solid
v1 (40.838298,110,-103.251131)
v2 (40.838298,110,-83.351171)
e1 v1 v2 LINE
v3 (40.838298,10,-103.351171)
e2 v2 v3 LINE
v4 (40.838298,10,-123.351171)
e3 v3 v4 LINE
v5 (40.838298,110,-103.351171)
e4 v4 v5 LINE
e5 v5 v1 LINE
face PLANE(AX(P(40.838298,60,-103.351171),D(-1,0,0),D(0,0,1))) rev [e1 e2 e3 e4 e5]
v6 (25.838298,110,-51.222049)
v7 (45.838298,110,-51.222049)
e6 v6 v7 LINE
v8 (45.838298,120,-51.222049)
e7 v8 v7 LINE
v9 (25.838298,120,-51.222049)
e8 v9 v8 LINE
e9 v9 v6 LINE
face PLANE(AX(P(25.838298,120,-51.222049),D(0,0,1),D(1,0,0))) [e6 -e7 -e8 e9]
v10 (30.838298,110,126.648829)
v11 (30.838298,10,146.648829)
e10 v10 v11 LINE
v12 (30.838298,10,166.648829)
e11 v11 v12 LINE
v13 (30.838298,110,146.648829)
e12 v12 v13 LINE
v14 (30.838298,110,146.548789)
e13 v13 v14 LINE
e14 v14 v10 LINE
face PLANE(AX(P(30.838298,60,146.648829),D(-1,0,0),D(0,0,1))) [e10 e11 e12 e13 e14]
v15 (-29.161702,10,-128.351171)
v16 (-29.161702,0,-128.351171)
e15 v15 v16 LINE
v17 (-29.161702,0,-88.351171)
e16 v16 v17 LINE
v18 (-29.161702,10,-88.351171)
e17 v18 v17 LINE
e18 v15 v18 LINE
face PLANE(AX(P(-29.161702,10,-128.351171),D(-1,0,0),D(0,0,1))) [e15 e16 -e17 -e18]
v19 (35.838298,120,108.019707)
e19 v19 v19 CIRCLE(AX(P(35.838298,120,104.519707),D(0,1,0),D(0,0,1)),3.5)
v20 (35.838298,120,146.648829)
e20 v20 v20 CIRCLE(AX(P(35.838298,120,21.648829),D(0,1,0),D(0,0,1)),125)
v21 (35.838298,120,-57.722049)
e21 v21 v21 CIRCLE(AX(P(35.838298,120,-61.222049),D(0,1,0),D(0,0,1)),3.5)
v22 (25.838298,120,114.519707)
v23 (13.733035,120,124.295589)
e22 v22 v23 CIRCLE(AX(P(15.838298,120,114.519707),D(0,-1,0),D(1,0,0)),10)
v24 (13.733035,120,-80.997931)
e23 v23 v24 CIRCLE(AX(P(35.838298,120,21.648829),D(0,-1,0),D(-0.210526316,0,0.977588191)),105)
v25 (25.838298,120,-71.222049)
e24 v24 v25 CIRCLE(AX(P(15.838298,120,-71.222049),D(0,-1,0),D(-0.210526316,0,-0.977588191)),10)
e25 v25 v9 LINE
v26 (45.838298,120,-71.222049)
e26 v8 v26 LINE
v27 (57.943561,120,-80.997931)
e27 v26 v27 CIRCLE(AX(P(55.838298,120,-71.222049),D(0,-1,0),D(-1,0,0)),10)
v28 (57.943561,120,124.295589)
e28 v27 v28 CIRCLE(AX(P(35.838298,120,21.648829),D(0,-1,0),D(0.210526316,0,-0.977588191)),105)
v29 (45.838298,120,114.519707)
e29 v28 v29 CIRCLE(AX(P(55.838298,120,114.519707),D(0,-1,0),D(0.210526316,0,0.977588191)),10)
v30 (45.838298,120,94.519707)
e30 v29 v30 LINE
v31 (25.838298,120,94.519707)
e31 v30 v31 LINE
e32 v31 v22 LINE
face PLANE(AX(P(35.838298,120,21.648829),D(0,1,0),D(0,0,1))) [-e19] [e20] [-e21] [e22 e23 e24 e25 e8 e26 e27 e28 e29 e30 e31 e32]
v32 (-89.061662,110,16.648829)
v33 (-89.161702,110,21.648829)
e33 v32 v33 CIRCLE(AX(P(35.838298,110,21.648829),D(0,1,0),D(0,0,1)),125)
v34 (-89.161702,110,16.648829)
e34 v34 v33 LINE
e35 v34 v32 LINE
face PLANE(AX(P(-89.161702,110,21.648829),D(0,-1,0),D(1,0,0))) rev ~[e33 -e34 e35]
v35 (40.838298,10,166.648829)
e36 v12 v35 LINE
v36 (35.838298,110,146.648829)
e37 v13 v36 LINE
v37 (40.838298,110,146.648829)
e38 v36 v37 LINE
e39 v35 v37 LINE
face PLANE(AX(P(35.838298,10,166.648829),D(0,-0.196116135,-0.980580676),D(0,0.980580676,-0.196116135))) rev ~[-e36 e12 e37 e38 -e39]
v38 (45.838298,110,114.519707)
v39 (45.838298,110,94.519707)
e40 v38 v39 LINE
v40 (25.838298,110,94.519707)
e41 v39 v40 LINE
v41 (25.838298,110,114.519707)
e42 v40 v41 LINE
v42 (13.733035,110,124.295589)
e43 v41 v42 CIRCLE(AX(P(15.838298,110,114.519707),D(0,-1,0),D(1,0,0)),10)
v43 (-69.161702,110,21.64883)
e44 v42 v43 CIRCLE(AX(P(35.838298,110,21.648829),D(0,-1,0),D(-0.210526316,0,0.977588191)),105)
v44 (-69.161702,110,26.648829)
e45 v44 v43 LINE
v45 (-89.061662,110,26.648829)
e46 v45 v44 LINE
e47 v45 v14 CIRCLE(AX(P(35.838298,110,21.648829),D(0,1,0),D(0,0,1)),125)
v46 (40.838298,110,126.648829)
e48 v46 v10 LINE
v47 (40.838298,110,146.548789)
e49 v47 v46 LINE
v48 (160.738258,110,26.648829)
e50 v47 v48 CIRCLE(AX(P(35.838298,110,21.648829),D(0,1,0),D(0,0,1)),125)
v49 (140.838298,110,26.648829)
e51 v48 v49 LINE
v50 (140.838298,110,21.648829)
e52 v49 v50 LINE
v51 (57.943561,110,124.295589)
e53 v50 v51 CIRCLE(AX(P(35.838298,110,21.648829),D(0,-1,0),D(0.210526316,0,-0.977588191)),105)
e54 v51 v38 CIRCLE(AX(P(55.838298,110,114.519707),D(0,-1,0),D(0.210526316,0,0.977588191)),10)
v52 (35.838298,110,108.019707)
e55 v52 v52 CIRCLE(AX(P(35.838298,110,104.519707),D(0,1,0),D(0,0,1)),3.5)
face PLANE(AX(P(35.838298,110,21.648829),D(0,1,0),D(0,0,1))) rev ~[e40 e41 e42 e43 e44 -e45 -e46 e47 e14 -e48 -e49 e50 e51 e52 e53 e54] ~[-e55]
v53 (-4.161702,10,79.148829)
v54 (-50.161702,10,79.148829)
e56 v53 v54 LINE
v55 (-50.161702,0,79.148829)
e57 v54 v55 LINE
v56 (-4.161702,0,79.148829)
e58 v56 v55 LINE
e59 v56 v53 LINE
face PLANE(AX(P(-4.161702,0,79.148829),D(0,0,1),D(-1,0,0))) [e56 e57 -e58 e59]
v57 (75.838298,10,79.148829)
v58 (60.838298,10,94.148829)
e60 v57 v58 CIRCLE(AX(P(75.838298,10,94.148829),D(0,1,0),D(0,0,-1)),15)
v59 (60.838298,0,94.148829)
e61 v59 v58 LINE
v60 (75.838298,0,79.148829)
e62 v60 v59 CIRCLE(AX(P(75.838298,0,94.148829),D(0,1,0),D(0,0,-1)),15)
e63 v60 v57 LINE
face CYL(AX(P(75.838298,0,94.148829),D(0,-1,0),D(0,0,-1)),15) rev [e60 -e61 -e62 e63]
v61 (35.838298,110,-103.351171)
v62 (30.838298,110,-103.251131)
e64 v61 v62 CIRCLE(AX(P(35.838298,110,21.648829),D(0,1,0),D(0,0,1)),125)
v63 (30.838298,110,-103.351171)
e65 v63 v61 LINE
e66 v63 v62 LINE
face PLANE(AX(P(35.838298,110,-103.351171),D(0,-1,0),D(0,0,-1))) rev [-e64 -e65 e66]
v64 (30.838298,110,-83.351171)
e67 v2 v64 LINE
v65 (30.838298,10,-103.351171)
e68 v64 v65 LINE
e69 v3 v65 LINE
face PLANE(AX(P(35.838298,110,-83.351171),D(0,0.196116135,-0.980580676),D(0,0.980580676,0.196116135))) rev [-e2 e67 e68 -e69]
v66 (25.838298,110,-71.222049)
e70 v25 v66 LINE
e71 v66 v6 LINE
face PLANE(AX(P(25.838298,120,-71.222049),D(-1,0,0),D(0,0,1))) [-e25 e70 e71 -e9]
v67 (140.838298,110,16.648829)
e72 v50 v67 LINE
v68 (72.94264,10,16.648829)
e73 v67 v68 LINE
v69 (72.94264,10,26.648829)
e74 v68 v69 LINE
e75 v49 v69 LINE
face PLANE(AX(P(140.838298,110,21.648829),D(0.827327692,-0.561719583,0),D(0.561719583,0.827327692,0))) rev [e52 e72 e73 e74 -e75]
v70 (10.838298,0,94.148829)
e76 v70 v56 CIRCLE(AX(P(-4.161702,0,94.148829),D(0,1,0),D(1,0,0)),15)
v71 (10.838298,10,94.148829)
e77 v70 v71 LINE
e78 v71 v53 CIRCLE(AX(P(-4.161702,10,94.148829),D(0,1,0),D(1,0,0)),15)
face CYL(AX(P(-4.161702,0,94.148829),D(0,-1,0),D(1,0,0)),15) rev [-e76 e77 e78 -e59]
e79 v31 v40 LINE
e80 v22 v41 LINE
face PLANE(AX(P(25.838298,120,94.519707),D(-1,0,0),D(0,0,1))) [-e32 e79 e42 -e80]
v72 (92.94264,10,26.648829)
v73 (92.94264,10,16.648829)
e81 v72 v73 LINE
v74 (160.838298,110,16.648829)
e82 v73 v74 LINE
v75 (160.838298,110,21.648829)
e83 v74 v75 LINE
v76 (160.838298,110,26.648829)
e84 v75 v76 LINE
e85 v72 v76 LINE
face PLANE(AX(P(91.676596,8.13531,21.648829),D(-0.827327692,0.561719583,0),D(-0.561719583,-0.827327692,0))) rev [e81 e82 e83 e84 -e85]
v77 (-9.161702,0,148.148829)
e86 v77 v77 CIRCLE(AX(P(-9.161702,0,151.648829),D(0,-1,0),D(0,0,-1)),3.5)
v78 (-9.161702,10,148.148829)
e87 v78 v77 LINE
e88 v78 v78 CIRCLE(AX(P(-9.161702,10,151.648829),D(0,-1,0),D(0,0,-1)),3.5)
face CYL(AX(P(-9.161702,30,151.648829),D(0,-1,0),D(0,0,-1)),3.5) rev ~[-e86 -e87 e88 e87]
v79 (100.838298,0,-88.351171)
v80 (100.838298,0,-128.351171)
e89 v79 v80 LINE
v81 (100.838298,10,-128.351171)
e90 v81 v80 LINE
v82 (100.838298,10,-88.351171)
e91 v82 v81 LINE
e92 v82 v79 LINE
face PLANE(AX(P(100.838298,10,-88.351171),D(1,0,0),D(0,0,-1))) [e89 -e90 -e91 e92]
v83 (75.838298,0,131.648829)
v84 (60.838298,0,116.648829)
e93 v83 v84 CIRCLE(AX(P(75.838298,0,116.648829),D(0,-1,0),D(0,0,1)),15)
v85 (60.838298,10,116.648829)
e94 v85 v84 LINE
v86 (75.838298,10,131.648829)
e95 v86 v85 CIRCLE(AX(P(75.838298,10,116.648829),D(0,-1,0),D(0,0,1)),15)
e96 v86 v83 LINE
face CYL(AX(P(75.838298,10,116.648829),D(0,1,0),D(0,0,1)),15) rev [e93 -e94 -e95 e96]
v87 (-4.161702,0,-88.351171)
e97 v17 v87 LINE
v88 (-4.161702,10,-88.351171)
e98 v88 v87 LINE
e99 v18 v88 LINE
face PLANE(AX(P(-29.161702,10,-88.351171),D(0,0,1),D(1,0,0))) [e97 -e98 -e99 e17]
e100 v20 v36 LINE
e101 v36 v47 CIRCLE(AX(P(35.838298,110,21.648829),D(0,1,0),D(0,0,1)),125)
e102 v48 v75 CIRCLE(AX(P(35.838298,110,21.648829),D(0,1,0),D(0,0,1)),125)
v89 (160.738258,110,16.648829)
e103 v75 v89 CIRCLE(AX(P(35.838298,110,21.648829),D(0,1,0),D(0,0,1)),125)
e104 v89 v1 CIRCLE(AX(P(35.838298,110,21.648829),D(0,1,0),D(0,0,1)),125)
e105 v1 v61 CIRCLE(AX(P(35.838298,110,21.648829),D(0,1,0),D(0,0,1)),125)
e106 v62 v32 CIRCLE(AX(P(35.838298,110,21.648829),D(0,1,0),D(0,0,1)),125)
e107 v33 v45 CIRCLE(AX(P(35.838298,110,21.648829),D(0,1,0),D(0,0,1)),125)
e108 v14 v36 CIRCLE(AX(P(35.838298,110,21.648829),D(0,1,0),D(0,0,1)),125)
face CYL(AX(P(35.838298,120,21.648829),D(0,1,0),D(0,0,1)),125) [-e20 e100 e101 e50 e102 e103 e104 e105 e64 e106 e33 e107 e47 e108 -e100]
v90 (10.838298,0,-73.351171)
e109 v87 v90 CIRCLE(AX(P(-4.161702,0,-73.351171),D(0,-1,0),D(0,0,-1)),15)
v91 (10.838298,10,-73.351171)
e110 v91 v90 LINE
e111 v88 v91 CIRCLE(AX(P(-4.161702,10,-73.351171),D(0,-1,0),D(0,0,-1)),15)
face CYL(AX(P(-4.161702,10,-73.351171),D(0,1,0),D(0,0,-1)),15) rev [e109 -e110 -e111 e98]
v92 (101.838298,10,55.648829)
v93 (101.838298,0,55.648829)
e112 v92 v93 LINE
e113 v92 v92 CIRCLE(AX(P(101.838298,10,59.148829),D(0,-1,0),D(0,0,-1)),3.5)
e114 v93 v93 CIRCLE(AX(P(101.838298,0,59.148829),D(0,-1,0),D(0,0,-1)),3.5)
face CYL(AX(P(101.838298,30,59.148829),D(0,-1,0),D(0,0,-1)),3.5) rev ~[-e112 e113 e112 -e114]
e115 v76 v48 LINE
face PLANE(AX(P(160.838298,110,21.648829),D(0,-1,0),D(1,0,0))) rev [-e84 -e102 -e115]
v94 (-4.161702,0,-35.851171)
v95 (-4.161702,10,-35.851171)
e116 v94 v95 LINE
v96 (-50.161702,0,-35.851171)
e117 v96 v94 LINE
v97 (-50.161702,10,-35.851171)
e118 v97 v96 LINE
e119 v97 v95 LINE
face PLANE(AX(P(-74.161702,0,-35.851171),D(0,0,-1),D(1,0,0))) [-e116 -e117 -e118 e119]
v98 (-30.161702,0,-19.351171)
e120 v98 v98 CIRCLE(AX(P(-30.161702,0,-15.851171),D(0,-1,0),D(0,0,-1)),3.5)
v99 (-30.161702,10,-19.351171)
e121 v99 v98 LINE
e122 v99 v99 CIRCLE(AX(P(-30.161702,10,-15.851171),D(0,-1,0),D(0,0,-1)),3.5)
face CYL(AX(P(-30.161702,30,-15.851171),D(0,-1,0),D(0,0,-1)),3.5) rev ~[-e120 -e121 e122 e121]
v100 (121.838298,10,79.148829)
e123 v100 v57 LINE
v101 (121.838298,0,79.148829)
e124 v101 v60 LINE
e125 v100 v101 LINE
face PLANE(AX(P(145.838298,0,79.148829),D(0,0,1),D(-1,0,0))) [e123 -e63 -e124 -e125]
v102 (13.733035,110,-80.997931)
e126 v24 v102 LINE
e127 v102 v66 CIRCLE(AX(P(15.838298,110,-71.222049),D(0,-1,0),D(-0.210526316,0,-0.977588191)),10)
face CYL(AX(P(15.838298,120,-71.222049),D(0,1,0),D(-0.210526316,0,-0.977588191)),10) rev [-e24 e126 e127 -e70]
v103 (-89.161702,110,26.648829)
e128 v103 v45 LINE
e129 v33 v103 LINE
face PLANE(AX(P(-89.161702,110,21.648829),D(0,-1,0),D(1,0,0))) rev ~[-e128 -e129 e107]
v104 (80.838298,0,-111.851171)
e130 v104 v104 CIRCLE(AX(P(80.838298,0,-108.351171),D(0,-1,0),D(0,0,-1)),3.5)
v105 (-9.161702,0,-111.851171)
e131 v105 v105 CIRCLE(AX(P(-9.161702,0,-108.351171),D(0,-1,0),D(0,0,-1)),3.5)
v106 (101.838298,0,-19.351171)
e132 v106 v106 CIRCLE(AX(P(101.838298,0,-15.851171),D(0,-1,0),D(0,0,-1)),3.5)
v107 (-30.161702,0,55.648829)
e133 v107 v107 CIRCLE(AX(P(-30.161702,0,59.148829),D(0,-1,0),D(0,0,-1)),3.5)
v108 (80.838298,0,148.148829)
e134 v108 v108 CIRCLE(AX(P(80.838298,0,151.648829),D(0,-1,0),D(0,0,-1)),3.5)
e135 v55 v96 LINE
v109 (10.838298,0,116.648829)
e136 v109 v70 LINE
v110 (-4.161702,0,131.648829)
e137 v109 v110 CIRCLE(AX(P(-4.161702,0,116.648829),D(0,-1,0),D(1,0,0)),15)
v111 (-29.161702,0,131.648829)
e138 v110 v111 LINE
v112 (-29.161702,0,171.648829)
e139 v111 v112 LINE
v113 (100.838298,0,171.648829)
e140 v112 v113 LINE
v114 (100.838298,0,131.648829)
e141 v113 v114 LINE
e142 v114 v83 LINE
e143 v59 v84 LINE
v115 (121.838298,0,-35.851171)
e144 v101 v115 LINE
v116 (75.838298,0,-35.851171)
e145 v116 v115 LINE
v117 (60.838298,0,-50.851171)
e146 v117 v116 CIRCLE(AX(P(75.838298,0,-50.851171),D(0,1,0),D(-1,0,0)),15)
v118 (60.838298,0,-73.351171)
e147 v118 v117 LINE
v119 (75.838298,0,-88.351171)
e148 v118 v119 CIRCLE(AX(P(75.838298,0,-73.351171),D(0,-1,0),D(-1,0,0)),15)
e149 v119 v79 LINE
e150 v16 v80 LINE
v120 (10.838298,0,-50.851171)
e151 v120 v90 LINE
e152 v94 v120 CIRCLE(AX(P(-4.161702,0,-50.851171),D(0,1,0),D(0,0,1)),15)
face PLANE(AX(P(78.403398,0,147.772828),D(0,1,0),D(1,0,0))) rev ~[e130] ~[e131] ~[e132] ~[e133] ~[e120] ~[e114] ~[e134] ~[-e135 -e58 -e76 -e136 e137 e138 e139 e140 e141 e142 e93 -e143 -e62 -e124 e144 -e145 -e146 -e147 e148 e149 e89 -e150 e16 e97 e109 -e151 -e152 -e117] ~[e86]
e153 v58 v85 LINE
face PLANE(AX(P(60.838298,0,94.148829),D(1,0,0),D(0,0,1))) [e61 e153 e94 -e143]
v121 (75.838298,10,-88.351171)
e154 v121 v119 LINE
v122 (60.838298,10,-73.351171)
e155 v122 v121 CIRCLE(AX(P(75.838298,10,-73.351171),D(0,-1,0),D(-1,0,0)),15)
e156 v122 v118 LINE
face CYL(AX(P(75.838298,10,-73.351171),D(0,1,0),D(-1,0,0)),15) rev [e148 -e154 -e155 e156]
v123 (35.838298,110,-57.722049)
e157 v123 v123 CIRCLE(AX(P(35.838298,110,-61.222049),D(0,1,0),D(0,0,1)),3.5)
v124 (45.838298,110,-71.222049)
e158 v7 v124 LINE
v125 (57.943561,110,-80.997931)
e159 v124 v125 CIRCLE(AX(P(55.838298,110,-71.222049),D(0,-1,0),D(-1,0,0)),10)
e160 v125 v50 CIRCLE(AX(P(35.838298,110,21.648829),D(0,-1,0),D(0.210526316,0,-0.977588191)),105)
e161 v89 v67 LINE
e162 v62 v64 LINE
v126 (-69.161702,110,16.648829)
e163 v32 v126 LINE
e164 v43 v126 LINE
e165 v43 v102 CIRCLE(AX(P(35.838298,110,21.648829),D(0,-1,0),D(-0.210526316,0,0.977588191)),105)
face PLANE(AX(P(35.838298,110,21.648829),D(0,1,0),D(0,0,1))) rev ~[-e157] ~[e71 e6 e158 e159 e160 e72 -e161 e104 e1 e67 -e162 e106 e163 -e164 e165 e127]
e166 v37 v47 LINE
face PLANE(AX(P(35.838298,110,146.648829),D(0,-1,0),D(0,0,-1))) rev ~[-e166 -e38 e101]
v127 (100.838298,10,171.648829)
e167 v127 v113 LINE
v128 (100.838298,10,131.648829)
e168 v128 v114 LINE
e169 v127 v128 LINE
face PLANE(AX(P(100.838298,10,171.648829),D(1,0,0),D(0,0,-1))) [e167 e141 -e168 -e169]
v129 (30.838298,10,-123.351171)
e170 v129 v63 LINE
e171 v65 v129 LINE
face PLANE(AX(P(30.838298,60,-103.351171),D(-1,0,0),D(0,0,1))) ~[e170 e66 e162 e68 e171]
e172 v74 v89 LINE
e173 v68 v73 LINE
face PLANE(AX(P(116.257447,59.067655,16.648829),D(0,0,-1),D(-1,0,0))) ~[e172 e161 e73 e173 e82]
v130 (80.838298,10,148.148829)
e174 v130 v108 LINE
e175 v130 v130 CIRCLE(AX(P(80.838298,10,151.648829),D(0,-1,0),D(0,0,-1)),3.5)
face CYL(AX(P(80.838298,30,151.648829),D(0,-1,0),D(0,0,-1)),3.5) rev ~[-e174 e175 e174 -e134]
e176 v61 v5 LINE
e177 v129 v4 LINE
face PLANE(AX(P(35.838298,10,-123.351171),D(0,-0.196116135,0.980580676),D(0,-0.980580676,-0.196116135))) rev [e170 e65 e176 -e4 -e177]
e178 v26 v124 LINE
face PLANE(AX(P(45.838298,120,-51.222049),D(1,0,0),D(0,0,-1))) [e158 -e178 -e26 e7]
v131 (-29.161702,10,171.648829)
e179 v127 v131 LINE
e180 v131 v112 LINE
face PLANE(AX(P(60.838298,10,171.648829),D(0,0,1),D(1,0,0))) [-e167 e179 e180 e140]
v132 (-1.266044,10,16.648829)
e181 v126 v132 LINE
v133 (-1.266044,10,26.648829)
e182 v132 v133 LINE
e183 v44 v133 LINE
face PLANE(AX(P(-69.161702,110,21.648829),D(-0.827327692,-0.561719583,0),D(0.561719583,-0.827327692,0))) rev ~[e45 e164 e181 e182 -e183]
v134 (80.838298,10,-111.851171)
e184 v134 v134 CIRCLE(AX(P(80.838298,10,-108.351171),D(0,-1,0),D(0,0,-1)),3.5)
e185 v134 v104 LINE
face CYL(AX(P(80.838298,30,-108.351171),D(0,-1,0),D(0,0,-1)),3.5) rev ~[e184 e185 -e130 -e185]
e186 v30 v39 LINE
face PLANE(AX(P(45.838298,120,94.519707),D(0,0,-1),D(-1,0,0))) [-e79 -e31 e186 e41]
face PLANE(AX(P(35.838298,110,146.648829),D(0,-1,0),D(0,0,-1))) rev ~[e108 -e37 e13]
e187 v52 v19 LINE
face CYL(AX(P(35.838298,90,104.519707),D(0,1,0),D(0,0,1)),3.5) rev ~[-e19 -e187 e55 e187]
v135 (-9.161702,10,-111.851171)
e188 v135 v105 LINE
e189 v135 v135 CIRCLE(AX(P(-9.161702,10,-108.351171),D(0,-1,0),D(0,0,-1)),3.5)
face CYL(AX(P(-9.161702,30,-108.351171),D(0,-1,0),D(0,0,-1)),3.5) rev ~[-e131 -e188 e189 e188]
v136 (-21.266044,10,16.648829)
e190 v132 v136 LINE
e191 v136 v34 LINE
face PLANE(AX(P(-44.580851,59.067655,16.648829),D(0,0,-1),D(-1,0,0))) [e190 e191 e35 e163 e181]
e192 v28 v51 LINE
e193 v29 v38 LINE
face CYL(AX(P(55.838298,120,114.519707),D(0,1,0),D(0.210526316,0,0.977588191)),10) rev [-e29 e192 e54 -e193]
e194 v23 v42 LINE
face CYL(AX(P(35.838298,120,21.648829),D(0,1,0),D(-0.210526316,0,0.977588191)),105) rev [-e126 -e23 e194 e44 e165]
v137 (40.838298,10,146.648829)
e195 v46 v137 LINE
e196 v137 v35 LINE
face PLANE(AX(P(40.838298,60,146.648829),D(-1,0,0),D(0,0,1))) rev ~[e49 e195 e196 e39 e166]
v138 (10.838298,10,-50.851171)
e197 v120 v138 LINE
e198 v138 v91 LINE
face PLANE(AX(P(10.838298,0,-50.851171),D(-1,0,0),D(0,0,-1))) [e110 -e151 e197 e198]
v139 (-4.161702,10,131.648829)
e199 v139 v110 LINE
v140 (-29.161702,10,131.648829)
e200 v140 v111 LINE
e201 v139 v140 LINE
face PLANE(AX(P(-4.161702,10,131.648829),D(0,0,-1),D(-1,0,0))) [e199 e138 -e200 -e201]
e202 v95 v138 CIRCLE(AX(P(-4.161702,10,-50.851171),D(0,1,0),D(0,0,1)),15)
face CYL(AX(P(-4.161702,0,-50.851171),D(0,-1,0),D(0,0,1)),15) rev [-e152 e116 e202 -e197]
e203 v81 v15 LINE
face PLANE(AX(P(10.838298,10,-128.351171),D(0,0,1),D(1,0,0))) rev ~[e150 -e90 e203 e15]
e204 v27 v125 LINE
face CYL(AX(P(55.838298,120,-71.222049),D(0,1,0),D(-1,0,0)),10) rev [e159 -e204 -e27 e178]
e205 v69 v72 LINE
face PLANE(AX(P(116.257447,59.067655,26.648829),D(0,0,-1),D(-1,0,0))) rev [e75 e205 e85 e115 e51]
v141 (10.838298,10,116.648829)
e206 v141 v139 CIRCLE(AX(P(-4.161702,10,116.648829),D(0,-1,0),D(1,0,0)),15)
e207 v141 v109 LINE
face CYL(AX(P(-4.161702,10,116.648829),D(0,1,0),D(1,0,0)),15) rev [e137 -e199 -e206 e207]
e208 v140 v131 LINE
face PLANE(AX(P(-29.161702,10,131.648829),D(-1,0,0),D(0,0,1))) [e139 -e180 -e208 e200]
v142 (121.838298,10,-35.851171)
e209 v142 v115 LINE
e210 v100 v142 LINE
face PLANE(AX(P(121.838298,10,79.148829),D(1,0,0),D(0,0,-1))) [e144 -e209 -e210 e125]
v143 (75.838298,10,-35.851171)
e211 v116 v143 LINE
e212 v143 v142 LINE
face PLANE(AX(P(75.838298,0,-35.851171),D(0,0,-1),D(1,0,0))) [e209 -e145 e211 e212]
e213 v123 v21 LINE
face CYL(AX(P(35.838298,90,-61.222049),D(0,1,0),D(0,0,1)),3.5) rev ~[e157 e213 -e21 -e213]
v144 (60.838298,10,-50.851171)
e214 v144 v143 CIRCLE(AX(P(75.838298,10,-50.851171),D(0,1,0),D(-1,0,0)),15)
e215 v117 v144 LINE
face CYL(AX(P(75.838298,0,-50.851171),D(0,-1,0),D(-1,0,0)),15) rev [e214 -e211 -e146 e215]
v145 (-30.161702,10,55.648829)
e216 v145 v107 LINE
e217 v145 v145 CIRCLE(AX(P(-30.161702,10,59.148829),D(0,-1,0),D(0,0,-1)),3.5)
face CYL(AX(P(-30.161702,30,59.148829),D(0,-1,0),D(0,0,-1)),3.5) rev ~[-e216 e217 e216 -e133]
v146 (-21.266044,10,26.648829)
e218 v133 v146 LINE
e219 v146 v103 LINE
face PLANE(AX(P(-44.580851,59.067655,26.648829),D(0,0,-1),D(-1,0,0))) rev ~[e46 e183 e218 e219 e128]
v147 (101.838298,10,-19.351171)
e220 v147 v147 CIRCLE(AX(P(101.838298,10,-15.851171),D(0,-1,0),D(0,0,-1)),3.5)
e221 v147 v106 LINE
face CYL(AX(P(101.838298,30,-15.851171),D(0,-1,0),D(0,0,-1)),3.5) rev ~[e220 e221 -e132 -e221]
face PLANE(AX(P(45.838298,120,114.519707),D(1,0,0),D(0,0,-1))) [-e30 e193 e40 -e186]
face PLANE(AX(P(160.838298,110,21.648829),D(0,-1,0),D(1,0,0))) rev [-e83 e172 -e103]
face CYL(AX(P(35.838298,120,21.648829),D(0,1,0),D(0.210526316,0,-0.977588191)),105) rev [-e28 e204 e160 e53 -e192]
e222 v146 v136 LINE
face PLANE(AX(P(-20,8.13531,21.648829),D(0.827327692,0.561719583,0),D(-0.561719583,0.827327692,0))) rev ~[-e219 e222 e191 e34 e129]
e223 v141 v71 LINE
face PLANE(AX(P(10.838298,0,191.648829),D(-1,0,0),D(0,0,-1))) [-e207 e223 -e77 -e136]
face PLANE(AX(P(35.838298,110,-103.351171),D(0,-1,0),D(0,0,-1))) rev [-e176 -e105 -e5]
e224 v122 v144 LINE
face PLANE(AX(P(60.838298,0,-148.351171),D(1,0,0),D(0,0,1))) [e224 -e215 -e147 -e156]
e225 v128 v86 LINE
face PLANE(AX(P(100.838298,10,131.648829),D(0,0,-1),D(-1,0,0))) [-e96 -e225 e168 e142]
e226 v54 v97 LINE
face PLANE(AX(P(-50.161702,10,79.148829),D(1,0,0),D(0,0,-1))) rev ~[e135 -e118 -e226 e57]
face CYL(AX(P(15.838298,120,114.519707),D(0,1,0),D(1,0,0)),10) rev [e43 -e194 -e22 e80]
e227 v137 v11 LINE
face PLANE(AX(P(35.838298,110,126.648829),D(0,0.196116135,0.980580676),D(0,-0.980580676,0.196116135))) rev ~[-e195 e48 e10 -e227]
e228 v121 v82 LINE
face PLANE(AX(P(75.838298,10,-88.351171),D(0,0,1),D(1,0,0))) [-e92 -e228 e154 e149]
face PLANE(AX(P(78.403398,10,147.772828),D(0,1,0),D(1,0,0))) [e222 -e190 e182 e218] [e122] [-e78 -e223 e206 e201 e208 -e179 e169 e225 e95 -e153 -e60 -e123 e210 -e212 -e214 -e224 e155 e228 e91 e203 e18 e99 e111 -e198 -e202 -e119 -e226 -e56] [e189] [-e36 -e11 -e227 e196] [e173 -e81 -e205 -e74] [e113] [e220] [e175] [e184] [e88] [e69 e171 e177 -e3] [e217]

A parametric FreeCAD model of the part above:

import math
import FreeCAD as App
import Part
import Sketcher
from FreeCAD import Vector
Q = App.Units.Quantity

doc = App.newDocument("Part")
body = doc.addObject("PartDesign::Body", "Body")

sketch1 = doc.addObject("Sketcher::SketchObject", "Sketch")
body.addObject(sketch1)
sketch1.AttachmentSupport = (doc.XZ_Plane, [""])
sketch1.MapMode = "FlatFace"
sketch1.addGeometry([
    Part.LineSegment(Vector(145.838298, -35.851171, 0), Vector(75.838298, -35.851171, 0)),
    Part.ArcOfCircle(Part.Circle(Vector(75.838298, -50.851171, 0), Vector(0, 0, 1), 15), math.radians(90), math.radians(180)),
    Part.LineSegment(Vector(60.838298, -50.851171, 0), Vector(60.838298, -148.351171, 0)),
    Part.LineSegment(Vector(60.838298, -148.351171, 0), Vector(10.838298, -148.351171, 0)),
    Part.LineSegment(Vector(10.838298, -148.351171, 0), Vector(10.838298, -50.851171, 0)),
    Part.ArcOfCircle(Part.Circle(Vector(-4.161702, -50.851171, 0), Vector(0, 0, 1), 15), math.radians(0), math.radians(90)),
    Part.LineSegment(Vector(-4.161702, -35.851171, 0), Vector(-74.161702, -35.851171, 0)),
    Part.LineSegment(Vector(-74.161702, -35.851171, 0), Vector(-74.161702, 79.148829, 0)),
    Part.LineSegment(Vector(-74.161702, 79.148829, 0), Vector(-4.161702, 79.148829, 0)),
    Part.ArcOfCircle(Part.Circle(Vector(-4.161702, 94.148829, 0), Vector(0, 0, 1), 15), math.radians(-90), math.radians(0)),
    Part.LineSegment(Vector(10.838298, 94.148829, 0), Vector(10.838298, 191.648829, 0)),
    Part.LineSegment(Vector(10.838298, 191.648829, 0), Vector(60.838298, 191.648829, 0)),
    Part.LineSegment(Vector(60.838298, 191.648829, 0), Vector(60.838298, 94.148829, 0)),
    Part.ArcOfCircle(Part.Circle(Vector(75.838298, 94.148829, 0), Vector(0, 0, 1), 15), math.radians(180), math.radians(270)),
    Part.LineSegment(Vector(75.838298, 79.148829, 0), Vector(145.838298, 79.148829, 0)),
    Part.LineSegment(Vector(145.838298, 79.148829, 0), Vector(145.838298, -35.851171, 0)),
], False)
sketch1.addConstraint([
    Sketcher.Constraint("Tangent", 0, 2, 1, 1),
    Sketcher.Constraint("Tangent", 1, 2, 2, 1),
    Sketcher.Constraint("Coincident", 2, 2, 3, 1),
    Sketcher.Constraint("Coincident", 3, 2, 4, 1),
    Sketcher.Constraint("Tangent", 4, 2, 5, 1),
    Sketcher.Constraint("Tangent", 5, 2, 6, 1),
    Sketcher.Constraint("Coincident", 6, 2, 7, 1),
    Sketcher.Constraint("Coincident", 7, 2, 8, 1),
    Sketcher.Constraint("Tangent", 8, 2, 9, 1),
    Sketcher.Constraint("Tangent", 9, 2, 10, 1),
    Sketcher.Constraint("Coincident", 10, 2, 11, 1),
    Sketcher.Constraint("Coincident", 11, 2, 12, 1),
    Sketcher.Constraint("Tangent", 12, 2, 13, 1),
    Sketcher.Constraint("Tangent", 13, 2, 14, 1),
    Sketcher.Constraint("Coincident", 14, 2, 15, 1),
    Sketcher.Constraint("Coincident", 15, 2, 0, 1),
    Sketcher.Constraint("Horizontal", 0),
    Sketcher.Constraint("Vertical", 2),
    Sketcher.Constraint("Horizontal", 3),
    Sketcher.Constraint("Vertical", 4),
    Sketcher.Constraint("Horizontal", 6),
    Sketcher.Constraint("Vertical", 7),
    Sketcher.Constraint("Horizontal", 8),
    Sketcher.Constraint("Vertical", 10),
    Sketcher.Constraint("Horizontal", 11),
    Sketcher.Constraint("Vertical", 12),
    Sketcher.Constraint("Horizontal", 14),
    Sketcher.Constraint("Vertical", 15),
    Sketcher.Constraint("Equal", 1, 5),
    Sketcher.Constraint("Equal", 5, 9),
    Sketcher.Constraint("Equal", 9, 13),
    Sketcher.Constraint("Horizontal", 1, 3, 5, 3),
    Sketcher.Constraint("Horizontal", 9, 3, 13, 3),
    Sketcher.Constraint("Vertical", 5, 3, 9, 3),
    Sketcher.Constraint("Vertical", 1, 3, 13, 3),
    Sketcher.Constraint("Equal", 0, 6),
    Sketcher.Constraint("Equal", 4, 10),
    Sketcher.Constraint("Radius", 1, Q("15 mm")),
    Sketcher.Constraint("DistanceX", 0, 2, 0, 1, Q("70 mm")),
    Sketcher.Constraint("DistanceX", 3, 2, 3, 1, Q("50 mm")),
    Sketcher.Constraint("DistanceY", 7, 1, 7, 2, Q("115 mm")),
    Sketcher.Constraint("DistanceY", 2, 2, 2, 1, Q("97.5 mm")),
    Sketcher.Constraint("DistanceX", -1, 1, 1, 3, Q("75.838298 mm")),
    Sketcher.Constraint("DistanceY", 1, 3, -1, 1, Q("50.851171 mm")),
])
pad1 = doc.addObject("PartDesign::Pad", "Pad")
body.addObject(pad1)
pad1.Profile = sketch1
pad1.Length = 10
pad1.Reversed = True
body2 = doc.addObject("PartDesign::Body", "Body001")

sketch2 = doc.addObject("Sketcher::SketchObject", "Sketch001")
body2.addObject(sketch2)
sketch2.AttachmentSupport = (doc.getObject("XZ_Plane001"), [""])
sketch2.MapMode = "FlatFace"
sketch2.AttachmentOffset = App.Placement(Vector(0, 0, -120), App.Rotation())
sketch2.addGeometry([
    Part.Circle(Vector(35.838298, 21.648829, 0), Vector(0, 0, 1), 125),
    Part.ArcOfCircle(Part.Circle(Vector(15.838298, -71.222049, 0), Vector(0, 0, 1), 10), math.radians(-102.153197), math.radians(0)),
    Part.LineSegment(Vector(25.838298, -71.222049, 0), Vector(25.838298, -51.222049, 0)),
    Part.LineSegment(Vector(25.838298, -51.222049, 0), Vector(45.838298, -51.222049, 0)),
    Part.LineSegment(Vector(45.838298, -51.222049, 0), Vector(45.838298, -71.222049, 0)),
    Part.ArcOfCircle(Part.Circle(Vector(55.838298, -71.222049, 0), Vector(0, 0, 1), 10), math.radians(180), math.radians(282.153197)),
    Part.ArcOfCircle(Part.Circle(Vector(35.838298, 21.648829, 0), Vector(0, 0, 1), 105), math.radians(-77.846803), math.radians(77.846803)),
    Part.ArcOfCircle(Part.Circle(Vector(55.838298, 114.519707, 0), Vector(0, 0, 1), 10), math.radians(77.846803), math.radians(180)),
    Part.LineSegment(Vector(45.838298, 114.519707, 0), Vector(45.838298, 94.519707, 0)),
    Part.LineSegment(Vector(45.838298, 94.519707, 0), Vector(25.838298, 94.519707, 0)),
    Part.LineSegment(Vector(25.838298, 94.519707, 0), Vector(25.838298, 114.519707, 0)),
    Part.ArcOfCircle(Part.Circle(Vector(15.838298, 114.519707, 0), Vector(0, 0, 1), 10), math.radians(0), math.radians(102.153197)),
    Part.ArcOfCircle(Part.Circle(Vector(35.838298, 21.648829, 0), Vector(0, 0, 1), 105), math.radians(102.153197), math.radians(257.846803)),
], False)
sketch2.addConstraint([
    Sketcher.Constraint("Tangent", 1, 2, 2, 1),
    Sketcher.Constraint("Coincident", 2, 2, 3, 1),
    Sketcher.Constraint("Coincident", 3, 2, 4, 1),
    Sketcher.Constraint("Tangent", 4, 2, 5, 1),
    Sketcher.Constraint("Tangent", 5, 2, 6, 1),
    Sketcher.Constraint("Tangent", 6, 2, 7, 1),
    Sketcher.Constraint("Tangent", 7, 2, 8, 1),
    Sketcher.Constraint("Coincident", 8, 2, 9, 1),
    Sketcher.Constraint("Coincident", 9, 2, 10, 1),
    Sketcher.Constraint("Tangent", 10, 2, 11, 1),
    Sketcher.Constraint("Tangent", 11, 2, 12, 1),
    Sketcher.Constraint("Tangent", 12, 2, 1, 1),
    Sketcher.Constraint("Vertical", 2),
    Sketcher.Constraint("Horizontal", 3),
    Sketcher.Constraint("Vertical", 4),
    Sketcher.Constraint("Vertical", 8),
    Sketcher.Constraint("Horizontal", 9),
    Sketcher.Constraint("Vertical", 10),
    Sketcher.Constraint("Coincident", 6, 3, 0, 3),
    Sketcher.Constraint("Coincident", 12, 3, 0, 3),
    Sketcher.Constraint("Equal", 1, 5),
    Sketcher.Constraint("Equal", 5, 7),
    Sketcher.Constraint("Equal", 7, 11),
    Sketcher.Constraint("Equal", 6, 12),
    Sketcher.Constraint("Horizontal", 1, 3, 5, 3),
    Sketcher.Constraint("Horizontal", 7, 3, 11, 3),
    Sketcher.Constraint("Vertical", 5, 3, 7, 3),
    Sketcher.Constraint("Equal", 9, 2),
    Sketcher.Constraint("Equal", 4, 8),
    Sketcher.Constraint("Diameter", 0, Q("250 mm")),
    Sketcher.Constraint("Radius", 1, Q("10 mm")),
    Sketcher.Constraint("Radius", 6, Q("105 mm")),
    Sketcher.Constraint("DistanceX", 3, 1, 3, 2, Q("20 mm")),
    Sketcher.Constraint("DistanceX", -1, 1, 0, 3, Q("35.838298 mm")),
    Sketcher.Constraint("DistanceY", -1, 1, 0, 3, Q("21.648829 mm")),
])
pad2 = doc.addObject("PartDesign::Pad", "Pad001")
body2.addObject(pad2)
pad2.Profile = sketch2
pad2.Length = 10
body.AllowCompound = True
doc.recompute()

boolean = doc.addObject("PartDesign::Boolean", "Boolean")
body.addObject(boolean)
boolean.Type = "Fuse"
boolean.addObjects([body2])

sketch3 = doc.addObject("Sketcher::SketchObject", "Sketch002")
body.addObject(sketch3)
sketch3.AttachmentSupport = (doc.YZ_Plane, [""])
sketch3.MapMode = "FlatFace"
sketch3.AttachmentOffset = App.Placement(Vector(0, 0, 35.838298), App.Rotation())
sketch3.addGeometry([
    Part.LineSegment(Vector(110, 126.648829, 0), Vector(110, 146.648829, 0)),
    Part.LineSegment(Vector(110, 146.648829, 0), Vector(10, 166.648829, 0)),
    Part.LineSegment(Vector(10, 166.648829, 0), Vector(10, 146.648829, 0)),
    Part.LineSegment(Vector(10, 146.648829, 0), Vector(110, 126.648829, 0)),
], False)
sketch3.addConstraint([
    Sketcher.Constraint("Coincident", 0, 2, 1, 1),
    Sketcher.Constraint("Coincident", 1, 2, 2, 1),
    Sketcher.Constraint("Coincident", 2, 2, 3, 1),
    Sketcher.Constraint("Coincident", 3, 2, 0, 1),
    Sketcher.Constraint("Vertical", 0),
    Sketcher.Constraint("Vertical", 2),
    Sketcher.Constraint("Parallel", 1, 3),
    Sketcher.Constraint("Horizontal", 0, 2, 2, 2),
    Sketcher.Constraint("DistanceY", 0, 1, 0, 2, Q("20 mm")),
    Sketcher.Constraint("DistanceX", -1, 1, 0, 2, Q("110 mm")),
    Sketcher.Constraint("DistanceX", -1, 1, 1, 2, Q("10 mm")),
    Sketcher.Constraint("DistanceY", -1, 1, 0, 2, Q("146.648829 mm")),
])
pad3 = doc.addObject("PartDesign::Pad", "Pad002")
body.addObject(pad3)
pad3.Profile = sketch3
pad3.Length = 10
pad3.Midplane = True
doc.recompute()

datumplane = doc.addObject("PartDesign::Plane", "DatumPlane")
body.addObject(datumplane)
datumplane.AttachmentSupport = (doc.XY_Plane, [""])
datumplane.MapMode = "FlatFace"
datumplane.AttachmentOffset = App.Placement(Vector(0, 0, 21.648829), App.Rotation())
mirrored = doc.addObject("PartDesign::Mirrored", "Mirrored")
body.addObject(mirrored)
mirrored.Originals = [pad3]
mirrored.MirrorPlane = (datumplane, [""])
body.Tip = mirrored

sketch4 = doc.addObject("Sketcher::SketchObject", "Sketch003")
body.addObject(sketch4)
sketch4.AttachmentSupport = (doc.XZ_Plane, [""])
sketch4.MapMode = "FlatFace"
sketch4.AttachmentOffset = App.Placement(Vector(0, 0, -10), App.Rotation())
sketch4.addGeometry([
    Part.LineSegment(Vector(10.838298, -148.351171, 0), Vector(10.838298, -128.351171, 0)),
    Part.LineSegment(Vector(10.838298, -128.351171, 0), Vector(60.838298, -128.351171, 0)),
    Part.LineSegment(Vector(60.838298, -128.351171, 0), Vector(60.838298, -148.351171, 0)),
    Part.LineSegment(Vector(60.838298, -148.351171, 0), Vector(10.838298, -148.351171, 0)),
    Part.LineSegment(Vector(10.838298, 171.648829, 0), Vector(10.838298, 191.648829, 0)),
    Part.LineSegment(Vector(10.838298, 191.648829, 0), Vector(60.838298, 191.648829, 0)),
    Part.LineSegment(Vector(60.838298, 191.648829, 0), Vector(60.838298, 171.648829, 0)),
    Part.LineSegment(Vector(60.838298, 171.648829, 0), Vector(10.838298, 171.648829, 0)),
], False)
sketch4.addConstraint([
    Sketcher.Constraint("Coincident", 0, 2, 1, 1),
    Sketcher.Constraint("Coincident", 1, 2, 2, 1),
    Sketcher.Constraint("Coincident", 2, 2, 3, 1),
    Sketcher.Constraint("Coincident", 3, 2, 0, 1),
    Sketcher.Constraint("Coincident", 4, 2, 5, 1),
    Sketcher.Constraint("Coincident", 5, 2, 6, 1),
    Sketcher.Constraint("Coincident", 6, 2, 7, 1),
    Sketcher.Constraint("Coincident", 7, 2, 4, 1),
    Sketcher.Constraint("Vertical", 0),
    Sketcher.Constraint("Horizontal", 1),
    Sketcher.Constraint("Vertical", 2),
    Sketcher.Constraint("Horizontal", 3),
    Sketcher.Constraint("Vertical", 4),
    Sketcher.Constraint("Horizontal", 5),
    Sketcher.Constraint("Vertical", 6),
    Sketcher.Constraint("Horizontal", 7),
    Sketcher.Constraint("Vertical", 3, 2, 4, 2),
    Sketcher.Constraint("Vertical", 2, 2, 5, 2),
    Sketcher.Constraint("Equal", 2, 4),
    Sketcher.Constraint("DistanceX", 1, 1, 1, 2, Q("50 mm")),
    Sketcher.Constraint("DistanceY", 0, 1, 0, 2, Q("20 mm")),
    Sketcher.Constraint("DistanceY", 0, 2, 4, 2, Q("320 mm")),
    Sketcher.Constraint("DistanceX", -1, 1, 0, 2, Q("10.838298 mm")),
    Sketcher.Constraint("DistanceY", 0, 2, -1, 1, Q("128.351171 mm")),
])
pocket1 = doc.addObject("PartDesign::Pocket", "Pocket")
body.addObject(pocket1)
pocket1.Profile = sketch4
pocket1.Length = 10
pocket1.Reversed = True

sketch5 = doc.addObject("Sketcher::SketchObject", "Sketch004")
body.addObject(sketch5)
sketch5.AttachmentSupport = (doc.XZ_Plane, [""])
sketch5.MapMode = "FlatFace"
sketch5.AttachmentOffset = App.Placement(Vector(0, 0, -10), App.Rotation())
sketch5.addGeometry([
    Part.LineSegment(Vector(60.838298, 171.648829, 0), Vector(100.838298, 171.648829, 0)),
    Part.LineSegment(Vector(100.838298, 171.648829, 0), Vector(100.838298, 131.648829, 0)),
    Part.LineSegment(Vector(100.838298, 131.648829, 0), Vector(75.838298, 131.648829, 0)),
    Part.ArcOfCircle(Part.Circle(Vector(75.838298, 116.648829, 0), Vector(0, 0, 1), 15), math.radians(90), math.radians(180)),
    Part.LineSegment(Vector(60.838298, 116.648829, 0), Vector(60.838298, 171.648829, 0)),
    Part.LineSegment(Vector(-29.161702, 171.648829, 0), Vector(10.838298, 171.648829, 0)),
    Part.LineSegment(Vector(10.838298, 171.648829, 0), Vector(10.838298, 116.648829, 0)),
    Part.ArcOfCircle(Part.Circle(Vector(-4.161702, 116.648829, 0), Vector(0, 0, 1), 15), math.radians(0), math.radians(90)),
    Part.LineSegment(Vector(-4.161702, 131.648829, 0), Vector(-29.161702, 131.648829, 0)),
    Part.LineSegment(Vector(-29.161702, 131.648829, 0), Vector(-29.161702, 171.648829, 0)),
    Part.LineSegment(Vector(100.838298, -128.351171, 0), Vector(60.838298, -128.351171, 0)),
    Part.LineSegment(Vector(60.838298, -128.351171, 0), Vector(60.838298, -73.351171, 0)),
    Part.ArcOfCircle(Part.Circle(Vector(75.838298, -73.351171, 0), Vector(0, 0, 1), 15), math.radians(180), math.radians(270)),
    Part.LineSegment(Vector(75.838298, -88.351171, 0), Vector(100.838298, -88.351171, 0)),
    Part.LineSegment(Vector(100.838298, -88.351171, 0), Vector(100.838298, -128.351171, 0)),
    Part.LineSegment(Vector(10.838298, -128.351171, 0), Vector(-29.161702, -128.351171, 0)),
    Part.LineSegment(Vector(-29.161702, -128.351171, 0), Vector(-29.161702, -88.351171, 0)),
    Part.LineSegment(Vector(-29.161702, -88.351171, 0), Vector(-4.161702, -88.351171, 0)),
    Part.ArcOfCircle(Part.Circle(Vector(-4.161702, -73.351171, 0), Vector(0, 0, 1), 15), math.radians(-90), math.radians(0)),
    Part.LineSegment(Vector(10.838298, -73.351171, 0), Vector(10.838298, -128.351171, 0)),
], False)
sketch5.addConstraint([
    Sketcher.Constraint("Coincident", 0, 2, 1, 1),
    Sketcher.Constraint("Coincident", 1, 2, 2, 1),
    Sketcher.Constraint("Tangent", 2, 2, 3, 1),
    Sketcher.Constraint("Tangent", 3, 2, 4, 1),
    Sketcher.Constraint("Coincident", 4, 2, 0, 1),
    Sketcher.Constraint("Coincident", 5, 2, 6, 1),
    Sketcher.Constraint("Tangent", 6, 2, 7, 1),
    Sketcher.Constraint("Tangent", 7, 2, 8, 1),
    Sketcher.Constraint("Coincident", 8, 2, 9, 1),
    Sketcher.Constraint("Coincident", 9, 2, 5, 1),
    Sketcher.Constraint("Coincident", 10, 2, 11, 1),
    Sketcher.Constraint("Tangent", 11, 2, 12, 1),
    Sketcher.Constraint("Tangent", 12, 2, 13, 1),
    Sketcher.Constraint("Coincident", 13, 2, 14, 1),
    Sketcher.Constraint("Coincident", 14, 2, 10, 1),
    Sketcher.Constraint("Coincident", 15, 2, 16, 1),
    Sketcher.Constraint("Coincident", 16, 2, 17, 1),
    Sketcher.Constraint("Tangent", 17, 2, 18, 1),
    Sketcher.Constraint("Tangent", 18, 2, 19, 1),
    Sketcher.Constraint("Coincident", 19, 2, 15, 1),
    Sketcher.Constraint("Horizontal", 0),
    Sketcher.Constraint("Vertical", 1),
    Sketcher.Constraint("Horizontal", 2),
    Sketcher.Constraint("Vertical", 4),
    Sketcher.Constraint("Horizontal", 5),
    Sketcher.Constraint("Vertical", 6),
    Sketcher.Constraint("Horizontal", 8),
    Sketcher.Constraint("Vertical", 9),
    Sketcher.Constraint("Horizontal", 10),
    Sketcher.Constraint("Vertical", 11),
    Sketcher.Constraint("Horizontal", 13),
    Sketcher.Constraint("Vertical", 14),
    Sketcher.Constraint("Horizontal", 15),
    Sketcher.Constraint("Vertical", 16),
    Sketcher.Constraint("Horizontal", 17),
    Sketcher.Constraint("Vertical", 19),
    Sketcher.Constraint("Equal", 3, 7),
    Sketcher.Constraint("Equal", 7, 12),
    Sketcher.Constraint("Equal", 12, 18),
    Sketcher.Constraint("Horizontal", 3, 3, 7, 3),
    Sketcher.Constraint("Horizontal", 12, 3, 18, 3),
    Sketcher.Constraint("Horizontal", 4, 2, 5, 2),
    Sketcher.Constraint("Horizontal", 14, 2, 15, 2),
    Sketcher.Constraint("Vertical", 3, 3, 12, 3),
    Sketcher.Constraint("Vertical", 7, 3, 18, 3),
    Sketcher.Constraint("Vertical", 1, 2, 13, 2),
    Sketcher.Constraint("Vertical", 9, 2, 15, 2),
    Sketcher.Constraint("Equal", 0, 5),
    Sketcher.Constraint("Equal", 15, 1),
    Sketcher.Constraint("Equal", 6, 11),
    Sketcher.Constraint("Radius", 3, Q("15 mm")),
    Sketcher.Constraint("DistanceX", 0, 1, 0, 2, Q("40 mm")),
    Sketcher.Constraint("DistanceX", 7, 3, 3, 3, Q("80 mm")),
    Sketcher.Constraint("DistanceY", 12, 3, 3, 3, Q("190 mm")),
    Sketcher.Constraint("DistanceX", -1, 1, 3, 3, Q("75.838298 mm")),
    Sketcher.Constraint("DistanceY", -1, 1, 3, 3, Q("116.648829 mm")),
])
pad4 = doc.addObject("PartDesign::Pad", "Pad003")
body.addObject(pad4)
pad4.Profile = sketch5
pad4.Length = 10

sketch6 = doc.addObject("Sketcher::SketchObject", "Sketch005")
body.addObject(sketch6)
sketch6.AttachmentSupport = (doc.XZ_Plane, [""])
sketch6.MapMode = "FlatFace"
sketch6.AttachmentOffset = App.Placement(Vector(0, 0, -10), App.Rotation())
sketch6.addGeometry([
    Part.LineSegment(Vector(121.838298, -35.851171, 0), Vector(121.838298, 79.148829, 0)),
    Part.LineSegment(Vector(121.838298, 79.148829, 0), Vector(145.838298, 79.148829, 0)),
    Part.LineSegment(Vector(145.838298, 79.148829, 0), Vector(145.838298, -35.851171, 0)),
    Part.LineSegment(Vector(145.838298, -35.851171, 0), Vector(121.838298, -35.851171, 0)),
], False)
sketch6.addConstraint([
    Sketcher.Constraint("Coincident", 0, 2, 1, 1),
    Sketcher.Constraint("Coincident", 1, 2, 2, 1),
    Sketcher.Constraint("Coincident", 2, 2, 3, 1),
    Sketcher.Constraint("Coincident", 3, 2, 0, 1),
    Sketcher.Constraint("Vertical", 0),
    Sketcher.Constraint("Horizontal", 1),
    Sketcher.Constraint("Vertical", 2),
    Sketcher.Constraint("Horizontal", 3),
    Sketcher.Constraint("DistanceX", 1, 1, 1, 2, Q("24 mm")),
    Sketcher.Constraint("DistanceY", 0, 1, 0, 2, Q("115 mm")),
    Sketcher.Constraint("DistanceX", -1, 1, 0, 2, Q("121.838298 mm")),
    Sketcher.Constraint("DistanceY", -1, 1, 0, 2, Q("79.148829 mm")),
])
pocket2 = doc.addObject("PartDesign::Pocket", "Pocket001")
body.addObject(pocket2)
pocket2.Profile = sketch6
pocket2.Length = 10
pocket2.Reversed = True

sketch7 = doc.addObject("Sketcher::SketchObject", "Sketch006")
body.addObject(sketch7)
sketch7.AttachmentSupport = (doc.XZ_Plane, [""])
sketch7.MapMode = "FlatFace"
sketch7.AttachmentOffset = App.Placement(Vector(0, 0, -10), App.Rotation())
sketch7.addGeometry([
    Part.LineSegment(Vector(-74.161702, -35.851171, 0), Vector(-74.161702, 79.148829, 0)),
    Part.LineSegment(Vector(-74.161702, 79.148829, 0), Vector(-50.161702, 79.148829, 0)),
    Part.LineSegment(Vector(-50.161702, 79.148829, 0), Vector(-50.161702, -35.851171, 0)),
    Part.LineSegment(Vector(-50.161702, -35.851171, 0), Vector(-74.161702, -35.851171, 0)),
], False)
sketch7.addConstraint([
    Sketcher.Constraint("Coincident", 0, 2, 1, 1),
    Sketcher.Constraint("Coincident", 1, 2, 2, 1),
    Sketcher.Constraint("Coincident", 2, 2, 3, 1),
    Sketcher.Constraint("Coincident", 3, 2, 0, 1),
    Sketcher.Constraint("Vertical", 0),
    Sketcher.Constraint("Horizontal", 1),
    Sketcher.Constraint("Vertical", 2),
    Sketcher.Constraint("Horizontal", 3),
    Sketcher.Constraint("DistanceX", 1, 1, 1, 2, Q("24 mm")),
    Sketcher.Constraint("DistanceY", 0, 1, 0, 2, Q("115 mm")),
    Sketcher.Constraint("DistanceX", 0, 2, -1, 1, Q("74.161702 mm")),
    Sketcher.Constraint("DistanceY", -1, 1, 0, 2, Q("79.148829 mm")),
])
pocket3 = doc.addObject("PartDesign::Pocket", "Pocket002")
body.addObject(pocket3)
pocket3.Profile = sketch7
pocket3.Length = 10
pocket3.Reversed = True

sketch8 = doc.addObject("Sketcher::SketchObject", "Sketch007")
body.addObject(sketch8)
sketch8.AttachmentSupport = (doc.XY_Plane, [""])
sketch8.MapMode = "FlatFace"
sketch8.AttachmentOffset = App.Placement(Vector(0, 0, 21.648829), App.Rotation())
sketch8.addGeometry([
    Part.LineSegment(Vector(-69.161702, 110, 0), Vector(-89.161702, 110, 0)),
    Part.LineSegment(Vector(-89.161702, 110, 0), Vector(-20, 8.13531, 0)),
    Part.LineSegment(Vector(-20, 8.13531, 0), Vector(0, 8.13531, 0)),
    Part.LineSegment(Vector(0, 8.13531, 0), Vector(-69.161702, 110, 0)),
], False)
sketch8.addConstraint([
    Sketcher.Constraint("Coincident", 0, 2, 1, 1),
    Sketcher.Constraint("Coincident", 1, 2, 2, 1),
    Sketcher.Constraint("Coincident", 2, 2, 3, 1),
    Sketcher.Constraint("Coincident", 3, 2, 0, 1),
    Sketcher.Constraint("Horizontal", 0),
    Sketcher.Constraint("Horizontal", 2),
    Sketcher.Constraint("PointOnObject", 2, 2, -2),
    Sketcher.Constraint("Parallel", 1, 3),
    Sketcher.Constraint("DistanceX", 0, 2, 0, 1, Q("20 mm")),
    Sketcher.Constraint("DistanceY", -1, 1, 0, 2, Q("110 mm")),
    Sketcher.Constraint("DistanceX", 0, 2, -1, 1, Q("89.161702 mm")),
    Sketcher.Constraint("Distance", 1, Q("123.124961 mm")),
])
pad5 = doc.addObject("PartDesign::Pad", "Pad004")
body.addObject(pad5)
pad5.Profile = sketch8
pad5.Length = 10
pad5.Midplane = True
doc.recompute()

datumplane2 = doc.addObject("PartDesign::Plane", "DatumPlane001")
body.addObject(datumplane2)
datumplane2.AttachmentSupport = (doc.YZ_Plane, [""])
datumplane2.MapMode = "FlatFace"
datumplane2.AttachmentOffset = App.Placement(Vector(0, 0, 35.838298), App.Rotation())
mirrored2 = doc.addObject("PartDesign::Mirrored", "Mirrored001")
body.addObject(mirrored2)
mirrored2.Originals = [pad5]
mirrored2.MirrorPlane = (datumplane2, [""])
body.Tip = mirrored2

sketch9 = doc.addObject("Sketcher::SketchObject", "Sketch008")
body.addObject(sketch9)
sketch9.AttachmentSupport = (doc.XZ_Plane, [""])
sketch9.MapMode = "FlatFace"
sketch9.AttachmentOffset = App.Placement(Vector(0, 0, -110), App.Rotation())
sketch9.addGeometry([
    Part.Circle(Vector(35.838298, -61.222049, 0), Vector(0, 0, 1), 3.5),
    Part.Circle(Vector(35.838298, 104.519707, 0), Vector(0, 0, 1), 3.5),
], False)
sketch9.addConstraint([
    Sketcher.Constraint("Equal", 0, 1),
    Sketcher.Constraint("Vertical", 0, 3, 1, 3),
    Sketcher.Constraint("Diameter", 0, Q("7 mm")),
    Sketcher.Constraint("DistanceX", -1, 1, 0, 3, Q("35.838298 mm")),
    Sketcher.Constraint("DistanceY", 0, 3, -1, 1, Q("61.222049 mm")),
    Sketcher.Constraint("DistanceY", -1, 1, 1, 3, Q("104.519707 mm")),
])
doc.recompute()
hole = doc.addObject("PartDesign::Hole", "Hole")
body.addObject(hole)
hole.Profile = sketch9
hole.ThreadType = "None"
hole.Diameter = 7
hole.DepthType = "Dimension"
hole.Depth = 20
hole.DrillPoint = "Angled"
hole.DrillPointAngle = 118

sketch10 = doc.addObject("Sketcher::SketchObject", "Sketch009")
body.addObject(sketch10)
sketch10.AttachmentSupport = (doc.XZ_Plane, [""])
sketch10.MapMode = "FlatFace"
sketch10.AttachmentOffset = App.Placement(Vector(0, 0, -10), App.Rotation())
sketch10.addGeometry([
    Part.Circle(Vector(101.838298, -15.851171, 0), Vector(0, 0, 1), 3.5),
    Part.Circle(Vector(101.838298, 59.148829, 0), Vector(0, 0, 1), 3.5),
    Part.Circle(Vector(-30.161702, -15.851171, 0), Vector(0, 0, 1), 3.5),
    Part.Circle(Vector(-9.161702, -108.351171, 0), Vector(0, 0, 1), 3.5),
    Part.Circle(Vector(-30.161702, 59.148829, 0), Vector(0, 0, 1), 3.5),
    Part.Circle(Vector(-9.161702, 151.648829, 0), Vector(0, 0, 1), 3.5),
    Part.Circle(Vector(80.838298, 151.648829, 0), Vector(0, 0, 1), 3.5),
    Part.Circle(Vector(80.838298, -108.351171, 0), Vector(0, 0, 1), 3.5),
], False)
sketch10.addConstraint([
    Sketcher.Constraint("Equal", 0, 1),
    Sketcher.Constraint("Equal", 1, 2),
    Sketcher.Constraint("Equal", 2, 3),
    Sketcher.Constraint("Equal", 3, 4),
    Sketcher.Constraint("Equal", 4, 5),
    Sketcher.Constraint("Equal", 5, 6),
    Sketcher.Constraint("Equal", 6, 7),
    Sketcher.Constraint("Horizontal", 0, 3, 2, 3),
    Sketcher.Constraint("Horizontal", 1, 3, 4, 3),
    Sketcher.Constraint("Horizontal", 5, 3, 6, 3),
    Sketcher.Constraint("Horizontal", 3, 3, 7, 3),
    Sketcher.Constraint("Vertical", 0, 3, 1, 3),
    Sketcher.Constraint("Vertical", 2, 3, 4, 3),
    Sketcher.Constraint("Vertical", 3, 3, 5, 3),
    Sketcher.Constraint("Vertical", 6, 3, 7, 3),
    Sketcher.Constraint("Diameter", 0, Q("7 mm")),
    Sketcher.Constraint("DistanceY", 0, 3, 1, 3, Q("75 mm")),
    Sketcher.Constraint("DistanceX", 2, 3, 0, 3, Q("132 mm")),
    Sketcher.Constraint("DistanceX", 2, 3, 3, 3, Q("21 mm")),
    Sketcher.Constraint("DistanceY", 3, 3, 5, 3, Q("260 mm")),
    Sketcher.Constraint("DistanceX", 5, 3, 6, 3, Q("90 mm")),
    Sketcher.Constraint("DistanceY", 3, 3, 2, 3, Q("92.5 mm")),
    Sketcher.Constraint("DistanceX", -1, 1, 0, 3, Q("101.838298 mm")),
    Sketcher.Constraint("DistanceY", 0, 3, -1, 1, Q("15.851171 mm")),
])
doc.recompute()
hole2 = doc.addObject("PartDesign::Hole", "Hole001")
body.addObject(hole2)
hole2.Profile = sketch10
hole2.ThreadType = "None"
hole2.Diameter = 7
hole2.DepthType = "Dimension"
hole2.Depth = 20
hole2.DrillPoint = "Angled"
hole2.DrillPointAngle = 118
hole2.Reversed = True

doc.recompute()
